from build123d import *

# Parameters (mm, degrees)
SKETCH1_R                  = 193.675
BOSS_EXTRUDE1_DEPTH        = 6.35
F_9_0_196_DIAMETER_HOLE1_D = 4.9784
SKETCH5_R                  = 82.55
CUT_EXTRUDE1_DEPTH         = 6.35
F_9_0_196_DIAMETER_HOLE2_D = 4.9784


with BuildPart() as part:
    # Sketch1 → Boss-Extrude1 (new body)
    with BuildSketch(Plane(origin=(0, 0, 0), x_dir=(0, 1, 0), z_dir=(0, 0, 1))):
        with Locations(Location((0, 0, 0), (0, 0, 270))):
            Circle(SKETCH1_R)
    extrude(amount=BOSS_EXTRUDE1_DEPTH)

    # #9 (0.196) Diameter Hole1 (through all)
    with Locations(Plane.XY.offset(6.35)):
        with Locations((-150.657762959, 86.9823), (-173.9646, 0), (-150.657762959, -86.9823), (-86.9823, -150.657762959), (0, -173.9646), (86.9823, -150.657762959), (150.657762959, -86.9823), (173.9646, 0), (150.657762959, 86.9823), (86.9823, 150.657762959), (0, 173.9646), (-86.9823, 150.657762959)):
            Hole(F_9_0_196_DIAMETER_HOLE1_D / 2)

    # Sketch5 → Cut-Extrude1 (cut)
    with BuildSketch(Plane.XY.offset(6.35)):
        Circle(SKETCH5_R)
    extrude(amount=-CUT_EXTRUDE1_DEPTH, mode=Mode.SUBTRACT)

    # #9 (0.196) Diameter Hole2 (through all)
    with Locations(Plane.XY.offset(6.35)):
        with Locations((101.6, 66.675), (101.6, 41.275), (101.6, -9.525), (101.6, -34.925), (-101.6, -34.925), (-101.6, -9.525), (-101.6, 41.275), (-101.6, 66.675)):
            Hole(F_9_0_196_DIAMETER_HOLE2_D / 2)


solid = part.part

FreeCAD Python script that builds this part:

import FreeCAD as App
import Part
import Sketcher

V = App.Vector
Q = App.Units.Quantity

doc = App.newDocument("Part")
body = doc.addObject("PartDesign::Body", "Body")

# Sketch on XY plane
sketch1 = body.newObject("Sketcher::SketchObject", "Sketch")
sketch1.AttachmentSupport = (doc.getObject("XY_Plane"), [""])
sketch1.MapMode = "FlatFace"
sketch1.addGeometry(Part.Circle(V(0, 0, 0), V(0, 0, 1), 193.675), False)
sketch1.addConstraint(Sketcher.Constraint("Coincident", 0, 3, -1, 1))
sketch1.addConstraint(Sketcher.Constraint("Diameter", 0, Q("15.25 in")))
pad1 = body.newObject("PartDesign::Pad", "Pad")
pad1.Profile = sketch1
pad1.Length = Q("0.25 in")

# Sketch on XY plane
sketch2 = body.newObject("Sketcher::SketchObject", "Sketch001")
sketch2.AttachmentSupport = (doc.getObject("XY_Plane"), [""])
sketch2.MapMode = "FlatFace"
sketch2.AttachmentOffset = App.Placement(V(0, 0, 0.25 * 25.4), App.Rotation())
sketch2.addGeometry(Part.Circle(V(-150.657763, 86.9823, 0), V(0, 0, 1), 2.4892), False)
sketch2.addGeometry(Part.Circle(V(-173.9646, 0, 0), V(0, 0, 1), 2.4892), False)
sketch2.addGeometry(Part.Circle(V(-150.657763, -86.9823, 0), V(0, 0, 1), 2.4892), False)
sketch2.addGeometry(Part.Circle(V(-86.9823, -150.657763, 0), V(0, 0, 1), 2.4892), False)
sketch2.addGeometry(Part.Circle(V(0, -173.9646, 0), V(0, 0, 1), 2.4892), False)
sketch2.addGeometry(Part.Circle(V(86.9823, -150.657763, 0), V(0, 0, 1), 2.4892), False)
sketch2.addGeometry(Part.Circle(V(150.657763, -86.9823, 0), V(0, 0, 1), 2.4892), False)
sketch2.addGeometry(Part.Circle(V(173.9646, 0, 0), V(0, 0, 1), 2.4892), False)
sketch2.addGeometry(Part.Circle(V(150.657763, 86.9823, 0), V(0, 0, 1), 2.4892), False)
sketch2.addGeometry(Part.Circle(V(86.9823, 150.657763, 0), V(0, 0, 1), 2.4892), False)
sketch2.addGeometry(Part.Circle(V(0, 173.9646, 0), V(0, 0, 1), 2.4892), False)
sketch2.addGeometry(Part.Circle(V(-86.9823, 150.657763, 0), V(0, 0, 1), 2.4892), False)
sketch2.addConstraint(Sketcher.Constraint("Equal", 0, 1))
sketch2.addConstraint(Sketcher.Constraint("Equal", 1, 2))
sketch2.addConstraint(Sketcher.Constraint("Equal", 2, 3))
sketch2.addConstraint(Sketcher.Constraint("Equal", 3, 4))
sketch2.addConstraint(Sketcher.Constraint("Equal", 4, 5))
sketch2.addConstraint(Sketcher.Constraint("Equal", 5, 6))
sketch2.addConstraint(Sketcher.Constraint("Equal", 6, 7))
sketch2.addConstraint(Sketcher.Constraint("Equal", 7, 8))
sketch2.addConstraint(Sketcher.Constraint("Equal", 8, 9))
sketch2.addConstraint(Sketcher.Constraint("Equal", 9, 10))
sketch2.addConstraint(Sketcher.Constraint("Equal", 10, 11))
sketch2.addConstraint(Sketcher.Constraint("Symmetric", 0, 3, 6, 3, -1, 1))
sketch2.addConstraint(Sketcher.Constraint("Symmetric", 1, 3, 7, 3, -1, 1))
sketch2.addConstraint(Sketcher.Constraint("Symmetric", 2, 3, 8, 3, -1, 1))
sketch2.addConstraint(Sketcher.Constraint("Symmetric", 3, 3, 9, 3, -1, 1))
sketch2.addConstraint(Sketcher.Constraint("Symmetric", 4, 3, 10, 3, -1, 1))
sketch2.addConstraint(Sketcher.Constraint("Symmetric", 5, 3, 11, 3, -1, 1))
sketch2.addConstraint(Sketcher.Constraint("Symmetric", 3, 3, 5, 3, -2))
sketch2.addConstraint(Sketcher.Constraint("Symmetric", 2, 3, 6, 3, -2))
sketch2.addConstraint(Sketcher.Constraint("PointOnObject", 1, 3, -1))
sketch2.addConstraint(Sketcher.Constraint("PointOnObject", 4, 3, -2))
sketch2.addConstraint(Sketcher.Constraint("Diameter", 0, Q("0.196 in")))
sketch2.addConstraint(Sketcher.Constraint("DistanceX", 1, 3, -1, 1, Q("6.849 in")))
sketch2.addConstraint(Sketcher.Constraint("DistanceY", 4, 3, -1, 1, Q("6.849 in")))
sketch2.addConstraint(Sketcher.Constraint("DistanceY", 2, 3, 0, 3, Q("6.849 in")))
sketch2.addConstraint(Sketcher.Constraint("DistanceX", 3, 3, 5, 3, Q("6.849 in")))
sketch2.addConstraint(Sketcher.Constraint("DistanceX", 0, 3, -1, 1, Q("150.657763 mm")))
sketch2.addConstraint(Sketcher.Constraint("DistanceY", 3, 3, -1, 1, Q("150.657763 mm")))
doc.recompute()
hole = body.newObject("PartDesign::Hole", "Hole")
hole.Profile = sketch2
hole.ThreadType = "None"
hole.Diameter = Q("0.196 in")
hole.DepthType = "ThroughAll"

# Sketch on XY plane
sketch3 = body.newObject("Sketcher::SketchObject", "Sketch002")
sketch3.AttachmentSupport = (doc.getObject("XY_Plane"), [""])
sketch3.MapMode = "FlatFace"
sketch3.AttachmentOffset = App.Placement(V(0, 0, 0.25 * 25.4), App.Rotation())
sketch3.addGeometry(Part.Circle(V(0, 0, 0), V(0, 0, 1), 82.55), False)
sketch3.addConstraint(Sketcher.Constraint("Coincident", 0, 3, -1, 1))
sketch3.addConstraint(Sketcher.Constraint("Diameter", 0, Q("6.5 in")))
pocket1 = body.newObject("PartDesign::Pocket", "Pocket")
pocket1.Profile = sketch3
pocket1.Length = Q("0.25 in")

# Sketch on XY plane
sketch4 = body.newObject("Sketcher::SketchObject", "Sketch003")
sketch4.AttachmentSupport = (doc.getObject("XY_Plane"), [""])
sketch4.MapMode = "FlatFace"
sketch4.AttachmentOffset = App.Placement(V(0, 0, 0.25 * 25.4), App.Rotation())
sketch4.addGeometry(Part.Circle(V(101.6, 66.675, 0), V(0, 0, 1), 2.4892), False)
sketch4.addGeometry(Part.Circle(V(101.6, 41.275, 0), V(0, 0, 1), 2.4892), False)
sketch4.addGeometry(Part.Circle(V(101.6, -9.525, 0), V(0, 0, 1), 2.4892), False)
sketch4.addGeometry(Part.Circle(V(101.6, -34.925, 0), V(0, 0, 1), 2.4892), False)
sketch4.addGeometry(Part.Circle(V(-101.6, -34.925, 0), V(0, 0, 1), 2.4892), False)
sketch4.addGeometry(Part.Circle(V(-101.6, -9.525, 0), V(0, 0, 1), 2.4892), False)
sketch4.addGeometry(Part.Circle(V(-101.6, 41.275, 0), V(0, 0, 1), 2.4892), False)
sketch4.addGeometry(Part.Circle(V(-101.6, 66.675, 0), V(0, 0, 1), 2.4892), False)
sketch4.addConstraint(Sketcher.Constraint("Equal", 0, 1))
sketch4.addConstraint(Sketcher.Constraint("Equal", 1, 2))
sketch4.addConstraint(Sketcher.Constraint("Equal", 2, 3))
sketch4.addConstraint(Sketcher.Constraint("Equal", 3, 4))
sketch4.addConstraint(Sketcher.Constraint("Equal", 4, 5))
sketch4.addConstraint(Sketcher.Constraint("Equal", 5, 6))
sketch4.addConstraint(Sketcher.Constraint("Equal", 6, 7))
sketch4.addConstraint(Sketcher.Constraint("Symmetric", 3, 3, 4, 3, -2))
sketch4.addConstraint(Sketcher.Constraint("Symmetric", 2, 3, 5, 3, -2))
sketch4.addConstraint(Sketcher.Constraint("Symmetric", 1, 3, 6, 3, -2))
sketch4.addConstraint(Sketcher.Constraint("Symmetric", 0, 3, 7, 3, -2))
sketch4.addConstraint(Sketcher.Constraint("Vertical", 0, 3, 1, 3))
sketch4.addConstraint(Sketcher.Constraint("Vertical", 1, 3, 2, 3))
sketch4.addConstraint(Sketcher.Constraint("Vertical", 2, 3, 3, 3))
sketch4.addConstraint(Sketcher.Constraint("Diameter", 0, Q("0.196 in")))
sketch4.addConstraint(Sketcher.Constraint("DistanceX", -1, 1, 0, 3, Q("4 in")))
sketch4.addConstraint(Sketcher.Constraint("DistanceY", 1, 3, 0, 3, Q("1 in")))
sketch4.addConstraint(Sketcher.Constraint("DistanceY", 2, 3, 1, 3, Q("2 in")))
sketch4.addConstraint(Sketcher.Constraint("DistanceY", 3, 3, 2, 3, Q("1 in")))
sketch4.addConstraint(Sketcher.Constraint("DistanceY", -1, 1, 0, 3, Q("2.625 in")))
doc.recompute()
hole2 = body.newObject("PartDesign::Hole", "Hole001")
hole2.Profile = sketch4
hole2.ThreadType = "None"
hole2.Diameter = Q("0.196 in")
hole2.DepthType = "ThroughAll"

doc.recompute()
